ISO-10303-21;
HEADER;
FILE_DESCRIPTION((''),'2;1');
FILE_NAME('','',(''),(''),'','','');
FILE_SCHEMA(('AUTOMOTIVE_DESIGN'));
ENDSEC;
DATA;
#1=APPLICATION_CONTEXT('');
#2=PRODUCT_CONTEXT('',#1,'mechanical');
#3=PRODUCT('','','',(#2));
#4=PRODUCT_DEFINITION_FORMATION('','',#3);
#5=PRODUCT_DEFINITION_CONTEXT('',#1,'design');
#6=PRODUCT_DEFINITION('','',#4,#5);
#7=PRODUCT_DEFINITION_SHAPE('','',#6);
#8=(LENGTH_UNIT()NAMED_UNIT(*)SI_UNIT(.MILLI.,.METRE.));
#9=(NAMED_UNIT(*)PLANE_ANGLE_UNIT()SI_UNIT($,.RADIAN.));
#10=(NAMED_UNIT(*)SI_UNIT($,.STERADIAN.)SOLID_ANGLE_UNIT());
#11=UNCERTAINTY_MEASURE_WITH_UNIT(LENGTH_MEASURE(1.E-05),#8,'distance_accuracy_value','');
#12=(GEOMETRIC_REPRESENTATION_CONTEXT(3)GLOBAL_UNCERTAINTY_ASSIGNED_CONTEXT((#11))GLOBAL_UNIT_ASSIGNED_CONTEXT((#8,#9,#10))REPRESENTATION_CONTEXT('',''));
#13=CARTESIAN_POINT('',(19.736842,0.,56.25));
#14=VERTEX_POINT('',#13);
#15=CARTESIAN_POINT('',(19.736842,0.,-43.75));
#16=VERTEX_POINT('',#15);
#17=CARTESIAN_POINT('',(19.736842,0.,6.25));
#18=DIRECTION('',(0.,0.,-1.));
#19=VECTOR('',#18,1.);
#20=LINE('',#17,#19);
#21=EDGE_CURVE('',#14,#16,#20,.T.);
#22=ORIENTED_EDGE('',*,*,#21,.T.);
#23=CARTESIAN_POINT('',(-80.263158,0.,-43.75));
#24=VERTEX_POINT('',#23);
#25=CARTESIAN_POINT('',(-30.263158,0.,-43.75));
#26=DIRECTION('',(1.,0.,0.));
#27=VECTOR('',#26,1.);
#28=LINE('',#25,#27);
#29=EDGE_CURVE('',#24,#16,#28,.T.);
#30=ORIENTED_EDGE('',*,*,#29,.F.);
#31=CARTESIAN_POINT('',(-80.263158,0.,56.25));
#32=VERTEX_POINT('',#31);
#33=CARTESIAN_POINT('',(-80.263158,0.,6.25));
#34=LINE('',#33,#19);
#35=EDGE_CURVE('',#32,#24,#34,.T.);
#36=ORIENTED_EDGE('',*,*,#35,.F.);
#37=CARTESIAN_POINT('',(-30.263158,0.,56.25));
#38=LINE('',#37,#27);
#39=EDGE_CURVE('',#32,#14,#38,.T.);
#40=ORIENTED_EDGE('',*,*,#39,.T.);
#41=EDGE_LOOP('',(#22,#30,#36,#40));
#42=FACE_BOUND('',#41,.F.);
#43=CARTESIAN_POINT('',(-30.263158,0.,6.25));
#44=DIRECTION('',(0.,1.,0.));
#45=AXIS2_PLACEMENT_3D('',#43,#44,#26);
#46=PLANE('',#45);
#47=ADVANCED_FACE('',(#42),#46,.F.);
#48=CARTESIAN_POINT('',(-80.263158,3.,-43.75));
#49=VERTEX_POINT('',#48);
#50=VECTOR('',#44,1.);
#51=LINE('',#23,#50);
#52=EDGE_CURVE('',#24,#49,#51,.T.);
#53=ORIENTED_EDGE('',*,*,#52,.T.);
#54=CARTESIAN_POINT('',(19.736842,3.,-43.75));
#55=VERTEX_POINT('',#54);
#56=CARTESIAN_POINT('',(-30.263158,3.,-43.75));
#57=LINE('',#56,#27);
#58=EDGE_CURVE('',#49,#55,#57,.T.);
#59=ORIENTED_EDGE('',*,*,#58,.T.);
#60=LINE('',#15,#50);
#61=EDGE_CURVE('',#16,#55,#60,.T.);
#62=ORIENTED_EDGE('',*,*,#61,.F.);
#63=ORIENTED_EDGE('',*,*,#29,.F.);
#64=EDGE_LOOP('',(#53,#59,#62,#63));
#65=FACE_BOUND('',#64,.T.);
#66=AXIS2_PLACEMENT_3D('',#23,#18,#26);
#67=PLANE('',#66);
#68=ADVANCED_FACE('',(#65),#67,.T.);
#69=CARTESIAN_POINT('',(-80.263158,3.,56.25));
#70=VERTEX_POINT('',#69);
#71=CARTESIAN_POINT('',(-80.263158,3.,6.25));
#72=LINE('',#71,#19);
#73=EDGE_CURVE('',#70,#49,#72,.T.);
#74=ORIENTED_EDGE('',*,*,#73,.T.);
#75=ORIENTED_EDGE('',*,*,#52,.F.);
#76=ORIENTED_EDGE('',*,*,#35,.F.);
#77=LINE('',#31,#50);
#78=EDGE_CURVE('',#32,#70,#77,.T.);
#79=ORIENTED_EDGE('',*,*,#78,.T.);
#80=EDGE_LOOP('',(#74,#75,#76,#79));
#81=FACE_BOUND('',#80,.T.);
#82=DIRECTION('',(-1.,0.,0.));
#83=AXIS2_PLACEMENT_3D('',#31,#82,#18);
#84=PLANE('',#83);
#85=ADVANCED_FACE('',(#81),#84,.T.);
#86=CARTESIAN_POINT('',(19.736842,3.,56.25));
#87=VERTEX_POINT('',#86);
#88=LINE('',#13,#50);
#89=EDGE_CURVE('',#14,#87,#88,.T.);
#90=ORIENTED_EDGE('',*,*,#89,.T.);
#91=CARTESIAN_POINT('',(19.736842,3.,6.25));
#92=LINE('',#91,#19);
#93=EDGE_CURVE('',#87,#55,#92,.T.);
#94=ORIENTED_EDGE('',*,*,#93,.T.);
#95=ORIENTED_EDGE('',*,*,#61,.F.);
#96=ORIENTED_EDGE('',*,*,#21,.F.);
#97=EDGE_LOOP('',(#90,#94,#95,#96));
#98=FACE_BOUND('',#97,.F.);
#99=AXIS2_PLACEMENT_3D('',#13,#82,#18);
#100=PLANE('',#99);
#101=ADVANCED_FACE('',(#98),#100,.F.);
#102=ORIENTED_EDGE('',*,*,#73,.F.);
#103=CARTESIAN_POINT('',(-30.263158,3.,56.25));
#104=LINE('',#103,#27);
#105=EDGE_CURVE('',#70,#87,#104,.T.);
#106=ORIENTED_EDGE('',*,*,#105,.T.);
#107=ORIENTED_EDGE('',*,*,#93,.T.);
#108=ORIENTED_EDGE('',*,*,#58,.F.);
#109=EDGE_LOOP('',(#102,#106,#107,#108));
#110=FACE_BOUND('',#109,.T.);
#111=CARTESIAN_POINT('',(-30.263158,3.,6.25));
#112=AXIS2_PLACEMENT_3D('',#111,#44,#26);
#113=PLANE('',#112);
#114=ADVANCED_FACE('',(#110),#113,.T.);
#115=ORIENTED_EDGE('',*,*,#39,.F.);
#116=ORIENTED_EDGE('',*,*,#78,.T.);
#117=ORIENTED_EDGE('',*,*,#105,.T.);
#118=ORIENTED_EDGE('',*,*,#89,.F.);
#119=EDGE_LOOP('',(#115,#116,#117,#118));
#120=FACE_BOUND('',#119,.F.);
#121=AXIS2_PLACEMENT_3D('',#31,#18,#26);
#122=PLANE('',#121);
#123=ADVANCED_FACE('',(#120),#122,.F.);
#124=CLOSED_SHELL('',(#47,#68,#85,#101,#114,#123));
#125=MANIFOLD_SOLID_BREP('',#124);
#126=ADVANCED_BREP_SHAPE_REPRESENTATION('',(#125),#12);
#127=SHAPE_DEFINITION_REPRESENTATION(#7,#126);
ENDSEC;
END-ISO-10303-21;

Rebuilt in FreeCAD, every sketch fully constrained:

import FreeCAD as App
import Part
import Sketcher

doc = App.newDocument("Part")
body = doc.addObject("PartDesign::Body", "Body")

# Sketch on XZ plane
sketch1 = doc.addObject("Sketcher::SketchObject", "Sketch")
body.addObject(sketch1)
sketch1.AttachmentSupport = (doc.XZ_Plane, [""])
sketch1.MapMode = "FlatFace"
sketch1.addGeometry([
    Part.LineSegment(App.Vector(-80, -44, 0), App.Vector(-80, 56, 0)),
    Part.LineSegment(App.Vector(-80, 56, 0), App.Vector(20, 56, 0)),
    Part.LineSegment(App.Vector(20, 56, 0), App.Vector(20, -44, 0)),
    Part.LineSegment(App.Vector(20, -44, 0), App.Vector(-80, -44, 0)),
], False)
sketch1.addConstraint([
    Sketcher.Constraint("Coincident", 0, 2, 1, 1),
    Sketcher.Constraint("Coincident", 1, 2, 2, 1),
    Sketcher.Constraint("Coincident", 2, 2, 3, 1),
    Sketcher.Constraint("Coincident", 3, 2, 0, 1),
    Sketcher.Constraint("Vertical", 0),
    Sketcher.Constraint("Horizontal", 1),
    Sketcher.Constraint("Vertical", 2),
    Sketcher.Constraint("Horizontal", 3),
    Sketcher.Constraint("Equal", 3, 0),
    Sketcher.Constraint("DistanceX", 1, 1, 1, 2, 100.0),
    Sketcher.Constraint("DistanceY", -1, 1, 0, 2, 56.25),
    Sketcher.Constraint("DistanceX", 0, 2, -1, 1, 80.263158),
])
pad1 = doc.addObject("PartDesign::Pad", "Pad")
body.addObject(pad1)
pad1.Profile = sketch1
pad1.Length = 3
pad1.Reversed = True

doc.recompute()
